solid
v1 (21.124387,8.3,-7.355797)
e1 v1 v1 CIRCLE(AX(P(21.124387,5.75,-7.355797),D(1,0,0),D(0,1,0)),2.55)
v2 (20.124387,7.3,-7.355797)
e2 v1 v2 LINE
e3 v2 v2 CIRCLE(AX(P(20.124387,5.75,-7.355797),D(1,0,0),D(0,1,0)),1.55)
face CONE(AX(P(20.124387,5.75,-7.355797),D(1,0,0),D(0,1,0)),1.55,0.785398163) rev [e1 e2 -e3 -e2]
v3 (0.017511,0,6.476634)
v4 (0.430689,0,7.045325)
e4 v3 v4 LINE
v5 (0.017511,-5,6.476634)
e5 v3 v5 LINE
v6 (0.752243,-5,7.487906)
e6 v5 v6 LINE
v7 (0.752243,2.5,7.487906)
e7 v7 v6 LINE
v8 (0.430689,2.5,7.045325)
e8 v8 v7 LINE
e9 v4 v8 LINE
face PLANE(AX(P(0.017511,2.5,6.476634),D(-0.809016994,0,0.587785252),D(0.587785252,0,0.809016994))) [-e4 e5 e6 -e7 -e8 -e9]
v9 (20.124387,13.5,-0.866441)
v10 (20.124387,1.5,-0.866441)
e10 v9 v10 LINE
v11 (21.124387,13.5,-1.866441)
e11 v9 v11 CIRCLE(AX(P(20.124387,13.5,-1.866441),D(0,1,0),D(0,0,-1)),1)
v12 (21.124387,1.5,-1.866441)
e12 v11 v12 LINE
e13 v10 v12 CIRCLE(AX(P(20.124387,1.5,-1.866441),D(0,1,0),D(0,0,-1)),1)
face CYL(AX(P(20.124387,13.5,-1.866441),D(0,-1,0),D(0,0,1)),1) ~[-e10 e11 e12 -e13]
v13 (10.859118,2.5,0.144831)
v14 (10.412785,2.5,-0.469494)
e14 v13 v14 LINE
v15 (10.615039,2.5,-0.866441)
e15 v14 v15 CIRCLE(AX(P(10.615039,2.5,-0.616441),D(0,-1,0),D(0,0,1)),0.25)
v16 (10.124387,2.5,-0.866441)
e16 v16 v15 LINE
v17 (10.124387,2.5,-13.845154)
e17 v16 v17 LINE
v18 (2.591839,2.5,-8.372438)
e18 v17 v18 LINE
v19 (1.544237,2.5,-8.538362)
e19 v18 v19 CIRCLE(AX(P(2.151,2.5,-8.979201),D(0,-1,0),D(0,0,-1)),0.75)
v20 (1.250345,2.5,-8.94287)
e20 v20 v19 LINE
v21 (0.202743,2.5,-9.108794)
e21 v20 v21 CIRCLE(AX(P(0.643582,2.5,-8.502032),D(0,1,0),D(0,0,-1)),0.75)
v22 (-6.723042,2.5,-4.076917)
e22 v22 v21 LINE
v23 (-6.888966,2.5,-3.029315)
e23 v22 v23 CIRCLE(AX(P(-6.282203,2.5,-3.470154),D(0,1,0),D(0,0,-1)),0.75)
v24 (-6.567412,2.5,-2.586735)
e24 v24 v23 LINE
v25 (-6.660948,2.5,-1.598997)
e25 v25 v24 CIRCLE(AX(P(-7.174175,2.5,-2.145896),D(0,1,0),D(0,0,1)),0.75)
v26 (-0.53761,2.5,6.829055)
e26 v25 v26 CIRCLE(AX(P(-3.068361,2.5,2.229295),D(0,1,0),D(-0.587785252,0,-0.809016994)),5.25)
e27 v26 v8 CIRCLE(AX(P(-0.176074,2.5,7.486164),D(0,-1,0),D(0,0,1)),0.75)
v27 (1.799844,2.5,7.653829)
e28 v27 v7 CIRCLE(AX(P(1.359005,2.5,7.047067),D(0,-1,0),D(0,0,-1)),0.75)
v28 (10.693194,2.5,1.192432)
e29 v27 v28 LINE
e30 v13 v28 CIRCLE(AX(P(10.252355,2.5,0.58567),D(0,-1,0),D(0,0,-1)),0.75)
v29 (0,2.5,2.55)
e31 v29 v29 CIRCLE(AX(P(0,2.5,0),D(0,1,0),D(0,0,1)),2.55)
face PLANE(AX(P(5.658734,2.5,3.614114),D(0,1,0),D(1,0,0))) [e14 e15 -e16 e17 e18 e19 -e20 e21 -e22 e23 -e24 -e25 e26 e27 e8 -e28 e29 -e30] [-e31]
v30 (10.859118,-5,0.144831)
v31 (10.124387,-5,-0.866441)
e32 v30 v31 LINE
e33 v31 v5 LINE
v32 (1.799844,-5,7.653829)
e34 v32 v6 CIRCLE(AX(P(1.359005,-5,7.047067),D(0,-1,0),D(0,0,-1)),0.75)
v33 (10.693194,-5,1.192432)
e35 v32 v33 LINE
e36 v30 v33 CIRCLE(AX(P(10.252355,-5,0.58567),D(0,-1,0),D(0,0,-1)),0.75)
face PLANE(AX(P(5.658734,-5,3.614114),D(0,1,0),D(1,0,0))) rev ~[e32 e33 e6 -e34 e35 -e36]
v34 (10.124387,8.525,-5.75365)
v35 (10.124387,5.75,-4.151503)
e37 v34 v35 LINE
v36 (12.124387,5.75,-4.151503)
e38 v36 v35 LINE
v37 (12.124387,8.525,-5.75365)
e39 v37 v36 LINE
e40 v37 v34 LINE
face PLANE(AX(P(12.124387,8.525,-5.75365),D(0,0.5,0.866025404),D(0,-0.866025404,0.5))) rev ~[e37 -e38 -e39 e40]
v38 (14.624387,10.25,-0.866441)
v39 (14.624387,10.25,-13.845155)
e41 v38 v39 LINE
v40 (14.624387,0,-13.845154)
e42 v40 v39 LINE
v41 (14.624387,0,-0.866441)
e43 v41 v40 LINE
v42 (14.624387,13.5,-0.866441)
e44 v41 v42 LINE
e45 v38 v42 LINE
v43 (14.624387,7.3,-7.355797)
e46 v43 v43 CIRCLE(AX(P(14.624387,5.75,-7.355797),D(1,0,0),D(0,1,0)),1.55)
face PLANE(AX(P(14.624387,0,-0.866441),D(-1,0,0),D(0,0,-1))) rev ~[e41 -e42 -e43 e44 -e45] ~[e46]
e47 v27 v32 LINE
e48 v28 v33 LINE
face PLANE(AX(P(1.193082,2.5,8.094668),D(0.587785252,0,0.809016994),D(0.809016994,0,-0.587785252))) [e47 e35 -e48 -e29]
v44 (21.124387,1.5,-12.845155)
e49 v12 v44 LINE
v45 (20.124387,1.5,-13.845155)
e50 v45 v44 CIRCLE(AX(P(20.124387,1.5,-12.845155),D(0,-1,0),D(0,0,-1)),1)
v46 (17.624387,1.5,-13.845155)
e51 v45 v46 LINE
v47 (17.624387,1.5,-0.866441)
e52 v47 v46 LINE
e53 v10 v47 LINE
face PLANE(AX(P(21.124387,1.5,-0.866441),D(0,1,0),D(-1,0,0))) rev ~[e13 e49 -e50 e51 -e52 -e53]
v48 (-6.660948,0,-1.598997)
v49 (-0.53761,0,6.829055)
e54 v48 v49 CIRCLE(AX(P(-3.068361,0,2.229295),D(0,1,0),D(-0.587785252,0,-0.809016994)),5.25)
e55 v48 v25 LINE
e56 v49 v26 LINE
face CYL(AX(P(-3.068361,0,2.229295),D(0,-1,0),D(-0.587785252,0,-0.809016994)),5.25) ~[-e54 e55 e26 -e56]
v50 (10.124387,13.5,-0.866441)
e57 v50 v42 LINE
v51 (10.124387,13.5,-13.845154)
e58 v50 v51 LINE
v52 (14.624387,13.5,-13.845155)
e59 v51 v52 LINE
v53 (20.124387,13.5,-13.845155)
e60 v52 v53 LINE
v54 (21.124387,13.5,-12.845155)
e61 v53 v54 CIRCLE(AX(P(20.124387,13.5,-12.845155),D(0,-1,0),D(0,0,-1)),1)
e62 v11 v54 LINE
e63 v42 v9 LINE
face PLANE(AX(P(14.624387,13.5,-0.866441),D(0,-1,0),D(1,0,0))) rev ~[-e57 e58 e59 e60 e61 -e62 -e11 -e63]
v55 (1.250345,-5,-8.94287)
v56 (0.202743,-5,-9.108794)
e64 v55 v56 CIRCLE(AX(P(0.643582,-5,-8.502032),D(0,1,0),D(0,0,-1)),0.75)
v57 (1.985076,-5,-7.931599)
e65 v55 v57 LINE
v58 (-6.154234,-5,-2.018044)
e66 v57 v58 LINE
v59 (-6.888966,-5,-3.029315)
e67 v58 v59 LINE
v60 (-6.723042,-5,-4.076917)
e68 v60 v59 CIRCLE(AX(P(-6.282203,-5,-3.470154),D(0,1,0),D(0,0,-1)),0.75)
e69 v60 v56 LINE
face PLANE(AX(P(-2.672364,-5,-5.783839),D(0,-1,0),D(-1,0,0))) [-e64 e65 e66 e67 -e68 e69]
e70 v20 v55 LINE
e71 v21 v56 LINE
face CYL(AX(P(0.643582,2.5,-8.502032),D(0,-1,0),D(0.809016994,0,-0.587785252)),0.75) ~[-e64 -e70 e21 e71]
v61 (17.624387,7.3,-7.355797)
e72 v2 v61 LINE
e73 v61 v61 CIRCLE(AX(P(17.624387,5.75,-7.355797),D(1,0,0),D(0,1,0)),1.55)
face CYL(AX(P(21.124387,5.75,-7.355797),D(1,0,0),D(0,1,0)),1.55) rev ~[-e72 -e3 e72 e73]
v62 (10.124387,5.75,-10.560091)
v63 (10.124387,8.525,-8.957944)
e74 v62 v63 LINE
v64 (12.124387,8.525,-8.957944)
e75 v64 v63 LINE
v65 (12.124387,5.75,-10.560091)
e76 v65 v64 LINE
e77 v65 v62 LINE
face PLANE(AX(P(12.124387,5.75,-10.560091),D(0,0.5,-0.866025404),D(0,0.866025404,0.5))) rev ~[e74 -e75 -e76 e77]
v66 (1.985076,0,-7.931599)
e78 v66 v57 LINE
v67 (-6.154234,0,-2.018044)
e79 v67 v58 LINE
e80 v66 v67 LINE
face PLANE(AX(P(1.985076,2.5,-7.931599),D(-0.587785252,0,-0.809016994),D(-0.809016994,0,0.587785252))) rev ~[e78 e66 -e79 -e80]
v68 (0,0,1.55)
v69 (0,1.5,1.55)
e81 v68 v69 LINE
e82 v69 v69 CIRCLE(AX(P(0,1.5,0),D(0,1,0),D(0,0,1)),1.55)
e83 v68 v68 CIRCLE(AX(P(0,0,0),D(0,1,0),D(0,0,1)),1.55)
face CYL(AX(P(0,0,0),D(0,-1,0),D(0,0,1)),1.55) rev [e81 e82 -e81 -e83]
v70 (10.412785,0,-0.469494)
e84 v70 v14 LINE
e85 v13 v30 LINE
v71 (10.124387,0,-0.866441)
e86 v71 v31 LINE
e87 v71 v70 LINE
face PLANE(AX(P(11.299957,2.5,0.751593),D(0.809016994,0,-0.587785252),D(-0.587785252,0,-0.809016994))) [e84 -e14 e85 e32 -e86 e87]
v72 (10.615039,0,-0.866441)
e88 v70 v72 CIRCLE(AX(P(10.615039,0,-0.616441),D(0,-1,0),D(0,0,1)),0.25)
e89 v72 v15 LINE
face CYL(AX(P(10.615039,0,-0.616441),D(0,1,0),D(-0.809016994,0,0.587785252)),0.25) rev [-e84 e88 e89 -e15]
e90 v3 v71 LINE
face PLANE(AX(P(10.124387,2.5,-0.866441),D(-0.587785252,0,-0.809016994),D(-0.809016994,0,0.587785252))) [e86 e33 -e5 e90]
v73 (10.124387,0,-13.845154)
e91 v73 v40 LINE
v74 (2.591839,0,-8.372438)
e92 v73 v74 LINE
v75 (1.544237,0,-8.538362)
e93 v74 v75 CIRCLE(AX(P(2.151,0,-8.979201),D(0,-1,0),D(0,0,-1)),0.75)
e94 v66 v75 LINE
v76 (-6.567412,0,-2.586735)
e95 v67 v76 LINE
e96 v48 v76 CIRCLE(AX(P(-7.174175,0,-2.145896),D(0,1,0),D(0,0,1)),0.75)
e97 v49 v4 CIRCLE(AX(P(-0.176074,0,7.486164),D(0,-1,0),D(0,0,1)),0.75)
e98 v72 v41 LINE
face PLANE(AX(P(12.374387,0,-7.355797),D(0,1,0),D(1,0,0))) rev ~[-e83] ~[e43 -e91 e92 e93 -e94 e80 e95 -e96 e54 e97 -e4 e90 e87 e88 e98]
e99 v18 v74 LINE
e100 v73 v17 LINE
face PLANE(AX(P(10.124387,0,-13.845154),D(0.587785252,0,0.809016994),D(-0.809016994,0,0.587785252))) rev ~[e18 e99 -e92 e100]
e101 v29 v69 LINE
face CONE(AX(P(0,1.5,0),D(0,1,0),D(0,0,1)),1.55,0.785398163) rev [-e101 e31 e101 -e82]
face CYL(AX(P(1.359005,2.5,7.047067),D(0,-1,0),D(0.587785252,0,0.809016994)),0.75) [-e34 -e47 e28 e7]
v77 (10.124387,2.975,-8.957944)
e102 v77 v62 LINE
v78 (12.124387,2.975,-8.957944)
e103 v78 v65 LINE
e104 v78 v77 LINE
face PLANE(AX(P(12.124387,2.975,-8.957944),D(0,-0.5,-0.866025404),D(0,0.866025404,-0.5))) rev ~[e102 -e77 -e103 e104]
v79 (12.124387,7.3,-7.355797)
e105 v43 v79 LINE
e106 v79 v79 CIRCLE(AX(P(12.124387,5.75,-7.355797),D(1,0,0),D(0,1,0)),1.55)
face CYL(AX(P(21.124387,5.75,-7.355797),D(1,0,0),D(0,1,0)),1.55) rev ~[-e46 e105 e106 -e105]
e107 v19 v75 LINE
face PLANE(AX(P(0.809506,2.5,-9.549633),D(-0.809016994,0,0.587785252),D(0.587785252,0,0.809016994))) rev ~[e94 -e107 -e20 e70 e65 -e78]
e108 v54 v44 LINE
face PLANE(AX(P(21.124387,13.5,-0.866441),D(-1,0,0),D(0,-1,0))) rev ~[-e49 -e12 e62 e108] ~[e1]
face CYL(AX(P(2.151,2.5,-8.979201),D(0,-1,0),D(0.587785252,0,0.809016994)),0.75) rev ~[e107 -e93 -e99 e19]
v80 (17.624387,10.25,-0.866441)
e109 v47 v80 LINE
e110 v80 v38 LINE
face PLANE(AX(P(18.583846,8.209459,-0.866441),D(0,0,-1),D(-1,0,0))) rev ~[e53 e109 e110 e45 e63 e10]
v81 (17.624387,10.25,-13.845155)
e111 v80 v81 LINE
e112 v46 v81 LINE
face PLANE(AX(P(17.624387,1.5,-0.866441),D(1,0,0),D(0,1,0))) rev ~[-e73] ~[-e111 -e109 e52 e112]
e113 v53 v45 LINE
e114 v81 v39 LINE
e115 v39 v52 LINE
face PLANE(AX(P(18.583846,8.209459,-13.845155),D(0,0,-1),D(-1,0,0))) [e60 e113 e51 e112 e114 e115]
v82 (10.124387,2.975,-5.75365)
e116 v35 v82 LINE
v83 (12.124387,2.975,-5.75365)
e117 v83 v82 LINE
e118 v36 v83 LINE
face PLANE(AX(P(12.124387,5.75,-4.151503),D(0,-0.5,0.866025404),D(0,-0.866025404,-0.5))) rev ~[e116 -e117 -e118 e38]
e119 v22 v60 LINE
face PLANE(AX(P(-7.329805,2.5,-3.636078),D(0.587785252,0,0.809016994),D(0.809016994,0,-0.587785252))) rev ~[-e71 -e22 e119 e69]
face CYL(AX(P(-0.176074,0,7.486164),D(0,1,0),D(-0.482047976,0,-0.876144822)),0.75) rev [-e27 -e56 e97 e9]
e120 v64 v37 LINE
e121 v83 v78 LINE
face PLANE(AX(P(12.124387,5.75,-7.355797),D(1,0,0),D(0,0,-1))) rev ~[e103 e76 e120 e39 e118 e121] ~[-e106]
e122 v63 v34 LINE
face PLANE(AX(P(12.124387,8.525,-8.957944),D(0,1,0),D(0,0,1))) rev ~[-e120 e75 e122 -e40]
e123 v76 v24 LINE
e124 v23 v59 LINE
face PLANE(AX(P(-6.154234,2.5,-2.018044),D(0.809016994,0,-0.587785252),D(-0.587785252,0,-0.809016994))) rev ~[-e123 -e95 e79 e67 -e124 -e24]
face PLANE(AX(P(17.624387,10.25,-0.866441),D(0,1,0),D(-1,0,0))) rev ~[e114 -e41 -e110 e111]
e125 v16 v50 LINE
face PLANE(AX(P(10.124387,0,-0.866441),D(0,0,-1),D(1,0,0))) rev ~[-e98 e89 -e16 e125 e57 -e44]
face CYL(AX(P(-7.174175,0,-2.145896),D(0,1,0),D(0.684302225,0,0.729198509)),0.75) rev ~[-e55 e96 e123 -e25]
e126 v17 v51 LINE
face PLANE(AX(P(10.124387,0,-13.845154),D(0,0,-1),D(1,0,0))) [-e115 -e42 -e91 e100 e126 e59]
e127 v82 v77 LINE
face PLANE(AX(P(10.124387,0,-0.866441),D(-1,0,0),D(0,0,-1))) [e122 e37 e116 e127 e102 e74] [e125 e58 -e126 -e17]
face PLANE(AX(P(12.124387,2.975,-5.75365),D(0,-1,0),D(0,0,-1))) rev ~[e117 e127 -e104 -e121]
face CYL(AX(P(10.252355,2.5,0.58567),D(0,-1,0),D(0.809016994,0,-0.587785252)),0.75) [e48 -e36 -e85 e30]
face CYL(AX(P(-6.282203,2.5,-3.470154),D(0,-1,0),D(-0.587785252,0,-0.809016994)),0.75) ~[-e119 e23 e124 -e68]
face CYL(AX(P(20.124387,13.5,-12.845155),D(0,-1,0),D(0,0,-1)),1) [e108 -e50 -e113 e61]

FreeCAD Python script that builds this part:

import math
import FreeCAD as App
import Part
import Sketcher
from FreeCAD import Vector
Q = App.Units.Quantity


def edges_at(feature, points):
    """Names of the edges that pass closest to the given points."""
    edges = feature.Shape.Edges
    near = lambda p: min(range(len(edges)), key=lambda i: edges[i].distToShape(Part.Vertex(*p))[0])
    return sorted({f"Edge{near(p) + 1}" for p in points})

doc = App.newDocument("Part")
body = doc.addObject("PartDesign::Body", "Body")

# Sketch on XZ plane
sketch1 = doc.addObject("Sketcher::SketchObject", "Sketch")
body.addObject(sketch1)
sketch1.AttachmentSupport = (doc.XZ_Plane, [""])
sketch1.MapMode = "FlatFace"
sketch1.addGeometry([
    Part.LineSegment(Vector(10.1, -13.8, 0), Vector(-6.2, -2, 0)),  # 0
    Part.ArcOfCircle(Part.Circle(Vector(-3.1, 2.2, 0), Vector(0, 0, 1), 5.2), math.radians(54), math.radians(234)),  # 1
    Part.LineSegment(Vector(0, 6.5, 0), Vector(10.1, -0.9, 0)),  # 2
    Part.LineSegment(Vector(10.1, -0.9, 0), Vector(10.1, -13.8, 0)),  # 3
    Part.Circle(Vector(0, 0, 0), Vector(0, 0, 1), 1.6),  # 4
], False)
sketch1.addConstraint([
    Sketcher.Constraint("Tangent", 0, 2, 1, 2),
    Sketcher.Constraint("Tangent", 1, 1, 2, 1),
    Sketcher.Constraint("Coincident", 2, 2, 3, 1),
    Sketcher.Constraint("Coincident", 3, 2, 0, 1),
    Sketcher.Constraint("Vertical", 3),
    Sketcher.Constraint("Coincident", 4, 3, -1, 1),
    Sketcher.Constraint("Parallel", 0, 2),
    Sketcher.Constraint("Diameter", 4, 3.1),
    Sketcher.Constraint("Angle", 0, Q("144 deg")),
    Sketcher.Constraint("Radius", 1, 5.25),
    Sketcher.Constraint("Distance", 0, 20.121482),
    Sketcher.Constraint("DistanceX", 1, 3, -1, 1, 3.068361),
    Sketcher.Constraint("DistanceY", 2, 2, -1, 1, 0.866441),
])
pad1 = doc.addObject("PartDesign::Pad", "Pad")
body.addObject(pad1)
pad1.Profile = sketch1
pad1.Length = 2.5
pad1.Reversed = True

# Sketch on XZ plane
sketch2 = doc.addObject("Sketcher::SketchObject", "Sketch001")
body.addObject(sketch2)
sketch2.AttachmentSupport = (doc.XZ_Plane, [""])
sketch2.MapMode = "FlatFace"
sketch2.AttachmentOffset = App.Placement(Vector(0, 0, -2.5), App.Rotation())
sketch2.addGeometry([
    Part.LineSegment(Vector(0, 6.5, 0), Vector(1.2, 8.1, 0)),  # 0
    Part.LineSegment(Vector(1.2, 8.1, 0), Vector(11.3, 0.8, 0)),  # 1
    Part.LineSegment(Vector(11.3, 0.8, 0), Vector(10.1, -0.9, 0)),  # 2
    Part.LineSegment(Vector(10.1, -0.9, 0), Vector(0, 6.5, 0)),  # 3
    Part.LineSegment(Vector(0.8, -9.5, 0), Vector(-7.3, -3.6, 0)),  # 4
    Part.LineSegment(Vector(-7.3, -3.6, 0), Vector(-6.2, -2, 0)),  # 5
    Part.LineSegment(Vector(-6.2, -2, 0), Vector(2, -7.9, 0)),  # 6
    Part.LineSegment(Vector(2, -7.9, 0), Vector(0.8, -9.5, 0)),  # 7
], False)
sketch2.addConstraint([
    Sketcher.Constraint("Coincident", 0, 2, 1, 1),
    Sketcher.Constraint("Coincident", 1, 2, 2, 1),
    Sketcher.Constraint("Coincident", 2, 2, 3, 1),
    Sketcher.Constraint("Coincident", 3, 2, 0, 1),
    Sketcher.Constraint("Coincident", 4, 2, 5, 1),
    Sketcher.Constraint("Coincident", 5, 2, 6, 1),
    Sketcher.Constraint("Coincident", 6, 2, 7, 1),
    Sketcher.Constraint("Coincident", 7, 2, 4, 1),
    Sketcher.Constraint("Perpendicular", 0, 1),
    Sketcher.Constraint("Perpendicular", 1, 2),
    Sketcher.Constraint("Perpendicular", 2, 3),
    Sketcher.Constraint("Parallel", 3, 4),
    Sketcher.Constraint("Perpendicular", 4, 5),
    Sketcher.Constraint("Perpendicular", 5, 6),
    Sketcher.Constraint("Perpendicular", 6, 7),
    Sketcher.Constraint("Equal", 2, 5),
    Sketcher.Constraint("Angle", 0, Q("54 deg")),
    Sketcher.Constraint("Distance", 0, 2.0),
    Sketcher.Constraint("DistanceY", 6, 2, -1, 1, 7.931599),
    Sketcher.Constraint("Distance", 4, 10.060741),
    Sketcher.Constraint("DistanceX", -1, 1, 0, 2, 1.193082),
    Sketcher.Constraint("DistanceY", -1, 1, 0, 2, 8.094668),
    Sketcher.Constraint("DistanceY", 2, 2, -1, 1, 0.866441),
    Sketcher.Constraint("DistanceX", 4, 2, 2, 2, 17.454191),
])
pad2 = doc.addObject("PartDesign::Pad", "Pad001")
body.addObject(pad2)
pad2.Profile = sketch2
pad2.Length = 7.5

# Sketch on XZ plane
sketch3 = doc.addObject("Sketcher::SketchObject", "Sketch002")
body.addObject(sketch3)
sketch3.AttachmentSupport = (doc.XZ_Plane, [""])
sketch3.MapMode = "FlatFace"
sketch3.addGeometry([
    Part.LineSegment(Vector(10.1, -13.8, 0), Vector(10.1, -0.9, 0)),
    Part.LineSegment(Vector(10.1, -0.9, 0), Vector(14.6, -0.9, 0)),
    Part.LineSegment(Vector(14.6, -0.9, 0), Vector(14.6, -13.8, 0)),
    Part.LineSegment(Vector(14.6, -13.8, 0), Vector(10.1, -13.8, 0)),
], False)
sketch3.addConstraint([
    Sketcher.Constraint("Coincident", 0, 2, 1, 1),
    Sketcher.Constraint("Coincident", 1, 2, 2, 1),
    Sketcher.Constraint("Coincident", 2, 2, 3, 1),
    Sketcher.Constraint("Coincident", 3, 2, 0, 1),
    Sketcher.Constraint("Vertical", 0),
    Sketcher.Constraint("Horizontal", 1),
    Sketcher.Constraint("Vertical", 2),
    Sketcher.Constraint("Horizontal", 3),
    Sketcher.Constraint("DistanceX", 1, 1, 1, 2, 4.5),
    Sketcher.Constraint("DistanceY", 0, 1, 0, 2, 12.978714),
    Sketcher.Constraint("DistanceY", 0, 2, -1, 1, 0.866441),
    Sketcher.Constraint("DistanceX", -1, 1, 0, 2, 10.124387),
])
pad3 = doc.addObject("PartDesign::Pad", "Pad002")
body.addObject(pad3)
pad3.Profile = sketch3
pad3.Length = 13.5
pad3.Reversed = True

# Sketch on XY plane
sketch4 = doc.addObject("Sketcher::SketchObject", "Sketch003")
body.addObject(sketch4)
sketch4.AttachmentSupport = (doc.XY_Plane, [""])
sketch4.MapMode = "FlatFace"
sketch4.AttachmentOffset = App.Placement(Vector(0, 0, -0.866441), App.Rotation())
sketch4.addGeometry([
    Part.LineSegment(Vector(21.1, 13.5, 0), Vector(14.6, 13.5, 0)),  # 0
    Part.LineSegment(Vector(14.6, 13.5, 0), Vector(14.6, 10.2, 0)),  # 1
    Part.LineSegment(Vector(14.6, 10.2, 0), Vector(17.6, 10.2, 0)),  # 2
    Part.LineSegment(Vector(17.6, 10.2, 0), Vector(17.6, 1.5, 0)),  # 3
    Part.LineSegment(Vector(17.6, 1.5, 0), Vector(21.1, 1.5, 0)),  # 4
    Part.LineSegment(Vector(21.1, 1.5, 0), Vector(21.1, 13.5, 0)),  # 5
], False)
sketch4.addConstraint([
    Sketcher.Constraint("Coincident", 0, 2, 1, 1),
    Sketcher.Constraint("Coincident", 1, 2, 2, 1),
    Sketcher.Constraint("Coincident", 2, 2, 3, 1),
    Sketcher.Constraint("Coincident", 3, 2, 4, 1),
    Sketcher.Constraint("Coincident", 4, 2, 5, 1),
    Sketcher.Constraint("Coincident", 5, 2, 0, 1),
    Sketcher.Constraint("Horizontal", 0),
    Sketcher.Constraint("Vertical", 1),
    Sketcher.Constraint("Horizontal", 2),
    Sketcher.Constraint("Vertical", 3),
    Sketcher.Constraint("Horizontal", 4),
    Sketcher.Constraint("Vertical", 5),
    Sketcher.Constraint("DistanceX", 2, 1, 2, 2, 3.0),
    Sketcher.Constraint("DistanceY", 5, 1, 5, 2, 12.0),
    Sketcher.Constraint("DistanceX", 0, 2, 0, 1, 6.5),
    Sketcher.Constraint("DistanceY", 1, 2, 1, 1, 3.25),
    Sketcher.Constraint("DistanceY", -1, 1, 0, 2, 13.5),
    Sketcher.Constraint("DistanceX", -1, 1, 0, 2, 14.624387),
])
pad4 = doc.addObject("PartDesign::Pad", "Pad003")
body.addObject(pad4)
pad4.Profile = sketch4
pad4.Length = 12.978714
pad4.Reversed = True

# Sketch on YZ plane
sketch5 = doc.addObject("Sketcher::SketchObject", "Sketch004")
body.addObject(sketch5)
sketch5.AttachmentSupport = (doc.YZ_Plane, [""])
sketch5.MapMode = "FlatFace"
sketch5.AttachmentOffset = App.Placement(Vector(0, 0, 21.124387), App.Rotation())
sketch5.addGeometry(Part.Circle(Vector(5.8, -7.4, 0), Vector(0, 0, 1), 1.6), False)
sketch5.addConstraint([
    Sketcher.Constraint("Diameter", 0, 3.1),
    Sketcher.Constraint("DistanceX", -1, 1, 0, 3, 5.75),
    Sketcher.Constraint("DistanceY", 0, 3, -1, 1, 7.355797),
])
pocket1 = doc.addObject("PartDesign::Pocket", "Pocket")
body.addObject(pocket1)
pocket1.Profile = sketch5
pocket1.Type = "ThroughAll"

# Sketch on YZ plane
sketch6 = doc.addObject("Sketcher::SketchObject", "Sketch005")
body.addObject(sketch6)
sketch6.AttachmentSupport = (doc.YZ_Plane, [""])
sketch6.MapMode = "FlatFace"
sketch6.AttachmentOffset = App.Placement(Vector(0, 0, 12.124387), App.Rotation())
sketch6.addGeometry([
    Part.LineSegment(Vector(3, -9, 0), Vector(5.8, -10.6, 0)),  # 0
    Part.LineSegment(Vector(5.8, -10.6, 0), Vector(8.5, -9, 0)),  # 1
    Part.LineSegment(Vector(8.5, -9, 0), Vector(8.5, -5.8, 0)),  # 2
    Part.LineSegment(Vector(8.5, -5.8, 0), Vector(5.8, -4.2, 0)),  # 3
    Part.LineSegment(Vector(5.8, -4.2, 0), Vector(3, -5.8, 0)),  # 4
    Part.LineSegment(Vector(3, -5.8, 0), Vector(3, -9, 0)),  # 5
    Part.Circle(Vector(5.8, -7.4, 0), Vector(0, 0, 1), 1.6),  # 6
], False)
sketch6.addConstraint([
    Sketcher.Constraint("Coincident", 0, 2, 1, 1),
    Sketcher.Constraint("Coincident", 1, 2, 2, 1),
    Sketcher.Constraint("Coincident", 2, 2, 3, 1),
    Sketcher.Constraint("Coincident", 3, 2, 4, 1),
    Sketcher.Constraint("Coincident", 4, 2, 5, 1),
    Sketcher.Constraint("Coincident", 5, 2, 0, 1),
    Sketcher.Constraint("Vertical", 2),
    Sketcher.Constraint("Vertical", 5),
    Sketcher.Constraint("Parallel", 0, 3),
    Sketcher.Constraint("Parallel", 1, 4),
    Sketcher.Constraint("Horizontal", 2, 2, 4, 2),
    Sketcher.Constraint("Horizontal", 1, 2, 5, 2),
    Sketcher.Constraint("Vertical", 6, 3, 0, 2),
    Sketcher.Constraint("Vertical", 0, 2, 3, 2),
    Sketcher.Constraint("Diameter", 6, 3.1),
    Sketcher.Constraint("Angle", 0, Q("-30 deg")),
    Sketcher.Constraint("DistanceX", -1, 1, 6, 3, 5.75),
    Sketcher.Constraint("DistanceX", 4, 2, 2, 2, 5.55),
    Sketcher.Constraint("DistanceY", 2, 1, 2, 2, 3.204294),
    Sketcher.Constraint("DistanceY", 0, 2, -1, 1, 10.560091),
    Sketcher.Constraint("DistanceY", 6, 3, -1, 1, 7.355797),
])
pocket2 = doc.addObject("PartDesign::Pocket", "Pocket001")
body.addObject(pocket2)
pocket2.Profile = sketch6
pocket2.Length = 2
doc.recompute()

chamfer = doc.addObject("PartDesign::Chamfer", "Chamfer")
body.addObject(chamfer)
chamfer.Base = (pocket2, edges_at(pocket2, [(0, 2.5, -1.55), (21.124, 4.2, -7.356)]))
chamfer.Size = 1
doc.recompute()

fillet = doc.addObject("PartDesign::Fillet", "Fillet")
body.addObject(fillet)
fillet.Base = (chamfer, edges_at(chamfer, [
    (11.3, -1.25, 0.752),
    (1.193, -1.25, 8.095),
    (1.985, 1.25, -7.932),
    (-7.33, -1.25, -3.636),
    (0.81, -1.25, -9.55),
    (-6.154, 1.25, -2.018),
    (0.018, 1.25, 6.477),
]))
fillet.Radius = 0.75
doc.recompute()

fillet2 = doc.addObject("PartDesign::Fillet", "Fillet001")
body.addObject(fillet2)
fillet2.Base = (fillet, edges_at(fillet, [(10.124, 1.25, -0.866)]))
fillet2.Radius = 0.25
doc.recompute()

fillet3 = doc.addObject("PartDesign::Fillet", "Fillet002")
body.addObject(fillet3)
fillet3.Base = (fillet2, edges_at(fillet2, [(21.124, 7.5, -13.845), (21.124, 7.5, -0.866)]))
fillet3.Radius = 1

doc.recompute()
